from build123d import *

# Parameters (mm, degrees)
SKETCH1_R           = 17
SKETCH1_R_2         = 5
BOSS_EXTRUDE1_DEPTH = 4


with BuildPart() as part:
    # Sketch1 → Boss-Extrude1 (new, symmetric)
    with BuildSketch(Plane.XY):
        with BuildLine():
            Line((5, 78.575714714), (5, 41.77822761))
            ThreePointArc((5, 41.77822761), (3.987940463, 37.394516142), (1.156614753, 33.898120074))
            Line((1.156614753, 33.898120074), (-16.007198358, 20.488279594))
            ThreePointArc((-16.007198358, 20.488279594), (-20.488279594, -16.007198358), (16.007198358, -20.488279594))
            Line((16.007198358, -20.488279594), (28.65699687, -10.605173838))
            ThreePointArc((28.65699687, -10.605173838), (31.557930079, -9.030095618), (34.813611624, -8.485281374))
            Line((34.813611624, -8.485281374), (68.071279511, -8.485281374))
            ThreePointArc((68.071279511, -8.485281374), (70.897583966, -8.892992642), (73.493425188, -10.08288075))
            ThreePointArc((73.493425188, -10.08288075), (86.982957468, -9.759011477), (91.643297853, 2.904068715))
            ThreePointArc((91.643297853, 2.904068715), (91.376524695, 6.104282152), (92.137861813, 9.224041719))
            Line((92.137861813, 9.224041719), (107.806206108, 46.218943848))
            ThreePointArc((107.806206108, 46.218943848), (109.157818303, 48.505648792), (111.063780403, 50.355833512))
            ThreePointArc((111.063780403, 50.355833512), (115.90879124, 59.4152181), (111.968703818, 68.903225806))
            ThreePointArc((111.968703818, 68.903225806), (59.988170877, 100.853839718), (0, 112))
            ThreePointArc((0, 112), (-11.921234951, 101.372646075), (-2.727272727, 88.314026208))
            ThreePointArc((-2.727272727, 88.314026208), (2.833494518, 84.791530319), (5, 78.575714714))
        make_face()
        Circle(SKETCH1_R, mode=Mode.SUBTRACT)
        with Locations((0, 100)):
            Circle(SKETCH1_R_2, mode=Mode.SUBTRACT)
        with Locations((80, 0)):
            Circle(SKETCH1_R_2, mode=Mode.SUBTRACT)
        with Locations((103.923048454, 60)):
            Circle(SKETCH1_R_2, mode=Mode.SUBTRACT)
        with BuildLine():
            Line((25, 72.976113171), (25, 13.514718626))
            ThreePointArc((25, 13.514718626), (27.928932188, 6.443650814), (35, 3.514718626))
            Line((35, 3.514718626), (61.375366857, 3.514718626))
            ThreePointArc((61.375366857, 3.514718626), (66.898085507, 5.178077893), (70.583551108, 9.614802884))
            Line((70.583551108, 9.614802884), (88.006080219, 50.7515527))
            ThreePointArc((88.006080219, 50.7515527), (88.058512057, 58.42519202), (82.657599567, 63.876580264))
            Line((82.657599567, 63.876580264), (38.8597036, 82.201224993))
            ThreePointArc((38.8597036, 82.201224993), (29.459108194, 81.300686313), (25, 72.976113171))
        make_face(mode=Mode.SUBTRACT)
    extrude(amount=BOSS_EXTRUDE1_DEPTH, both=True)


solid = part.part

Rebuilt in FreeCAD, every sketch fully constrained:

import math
import FreeCAD as App
import Part
import Sketcher

V = App.Vector
Q = App.Units.Quantity

doc = App.newDocument("Part")
body = doc.addObject("PartDesign::Body", "Body")

# Sketch on XY plane
sketch1 = doc.addObject("Sketcher::SketchObject", "Sketch")
body.addObject(sketch1)
sketch1.AttachmentSupport = (doc.XY_Plane, [""])
sketch1.MapMode = "FlatFace"
sketch1.addGeometry([
    Part.LineSegment(V(5, 78.575715, 0), V(5, 41.778228, 0)),  # 0
    Part.ArcOfCircle(Part.Circle(V(-5, 41.778228, 0), V(0, 0, 1), 10), math.radians(-52), math.radians(0)),  # 1
    Part.LineSegment(V(1.156615, 33.89812, 0), V(-16.007198, 20.48828, 0)),  # 2
    Part.ArcOfCircle(Part.Circle(V(0, 0, 0), V(0, 0, 1), 26), math.radians(128), math.radians(308)),  # 3
    Part.LineSegment(V(16.007198, -20.48828, 0), V(28.656997, -10.605174, 0)),  # 4
    Part.ArcOfCircle(Part.Circle(V(34.813612, -18.485281, 0), V(0, 0, 1), 10), math.radians(90), math.radians(128)),  # 5
    Part.LineSegment(V(34.813612, -8.485281, 0), V(68.07128, -8.485281, 0)),  # 6
    Part.ArcOfCircle(Part.Circle(V(68.07128, -18.485281, 0), V(0, 0, 1), 10), math.radians(57.165478), math.radians(90)),  # 7
    Part.ArcOfCircle(Part.Circle(V(80, 0, 0), V(0, 0, 1), 12), math.radians(-122.834522), math.radians(14.00495)),  # 8
    Part.ArcOfCircle(Part.Circle(V(101.346046, 5.324126, 0), V(0, 0, 1), 10), math.radians(157.046025), math.radians(194.00495)),  # 9
    Part.LineSegment(V(92.137862, 9.224042, 0), V(107.806206, 46.218944, 0)),  # 10
    Part.ArcOfCircle(Part.Circle(V(117.01439, 42.319028, 0), V(0, 0, 1), 10), math.radians(126.51698), math.radians(157.046025)),  # 11
    Part.ArcOfCircle(Part.Circle(V(103.923048, 60, 0), V(0, 0, 1), 12), math.radians(-53.48302), math.radians(47.896551)),  # 12
    Part.ArcOfCircle(Part.Circle(V(0, -55, 0), V(0, 0, 1), 167), math.radians(47.896551), math.radians(90)),  # 13
    Part.ArcOfCircle(Part.Circle(V(0, 100, 0), V(0, 0, 1), 12), math.radians(90), math.radians(256.863441)),  # 14
    Part.ArcOfCircle(Part.Circle(V(-5, 78.575715, 0), V(0, 0, 1), 10), math.radians(0), math.radians(76.863441)),  # 15
    Part.Circle(V(0, 0, 0), V(0, 0, 1), 17),  # 16
    Part.Circle(V(80, 0, 0), V(0, 0, 1), 5),  # 17
    Part.LineSegment(V(25, 13.514719, 0), V(25, 72.976113, 0)),  # 18
    Part.ArcOfCircle(Part.Circle(V(35, 72.976113, 0), V(0, 0, 1), 10), math.radians(67.296005), math.radians(180)),  # 19
    Part.LineSegment(V(38.859704, 82.201225, 0), V(82.6576, 63.87658, 0)),  # 20
    Part.ArcOfCircle(Part.Circle(V(78.797896, 54.651468, 0), V(0, 0, 1), 10), math.radians(-22.953975), math.radians(67.296005)),  # 21
    Part.LineSegment(V(88.00608, 50.751553, 0), V(70.583551, 9.614803, 0)),  # 22
    Part.ArcOfCircle(Part.Circle(V(61.375367, 13.514719, 0), V(0, 0, 1), 10), math.radians(-90), math.radians(-22.953975)),  # 23
    Part.LineSegment(V(61.375367, 3.514719, 0), V(35, 3.514719, 0)),  # 24
    Part.ArcOfCircle(Part.Circle(V(35, 13.514719, 0), V(0, 0, 1), 10), math.radians(180), math.radians(270)),  # 25
    Part.Circle(V(0, 100, 0), V(0, 0, 1), 5),  # 26
    Part.Circle(V(103.923048, 60, 0), V(0, 0, 1), 5),  # 27
], False)
sketch1.addConstraint([
    Sketcher.Constraint("Tangent", 0, 2, 1, 2),
    Sketcher.Constraint("Tangent", 1, 1, 2, 1),
    Sketcher.Constraint("Tangent", 2, 2, 3, 1),
    Sketcher.Constraint("Tangent", 3, 2, 4, 1),
    Sketcher.Constraint("Tangent", 4, 2, 5, 2),
    Sketcher.Constraint("Tangent", 5, 1, 6, 1),
    Sketcher.Constraint("Tangent", 6, 2, 7, 2),
    Sketcher.Constraint("Tangent", 7, 1, 8, 1),
    Sketcher.Constraint("Tangent", 8, 2, 9, 2),
    Sketcher.Constraint("Tangent", 9, 1, 10, 1),
    Sketcher.Constraint("Tangent", 10, 2, 11, 2),
    Sketcher.Constraint("Tangent", 11, 1, 12, 1),
    Sketcher.Constraint("Tangent", 12, 2, 13, 1),
    Sketcher.Constraint("Tangent", 13, 2, 14, 1),
    Sketcher.Constraint("Tangent", 14, 2, 15, 2),
    Sketcher.Constraint("Tangent", 15, 1, 0, 1),
    Sketcher.Constraint("Tangent", 18, 2, 19, 2),
    Sketcher.Constraint("Tangent", 19, 1, 20, 1),
    Sketcher.Constraint("Tangent", 20, 2, 21, 2),
    Sketcher.Constraint("Tangent", 21, 1, 22, 1),
    Sketcher.Constraint("Tangent", 22, 2, 23, 2),
    Sketcher.Constraint("Tangent", 23, 1, 24, 1),
    Sketcher.Constraint("Tangent", 24, 2, 25, 2),
    Sketcher.Constraint("Tangent", 25, 1, 18, 1),
    Sketcher.Constraint("Vertical", 0),
    Sketcher.Constraint("Horizontal", 6),
    Sketcher.Constraint("Vertical", 18),
    Sketcher.Constraint("Horizontal", 24),
    Sketcher.Constraint("Coincident", 3, 3, -1, 1),
    Sketcher.Constraint("Coincident", 16, 3, -1, 1),
    Sketcher.Constraint("Coincident", 17, 3, 8, 3),
    Sketcher.Constraint("Coincident", 26, 3, 14, 3),
    Sketcher.Constraint("Coincident", 27, 3, 12, 3),
    Sketcher.Constraint("Equal", 1, 5),
    Sketcher.Constraint("Equal", 5, 7),
    Sketcher.Constraint("Equal", 7, 9),
    Sketcher.Constraint("Equal", 9, 11),
    Sketcher.Constraint("Equal", 8, 12),
    Sketcher.Constraint("Equal", 12, 14),
    Sketcher.Constraint("Equal", 11, 15),
    Sketcher.Constraint("Equal", 15, 19),
    Sketcher.Constraint("Equal", 19, 21),
    Sketcher.Constraint("Equal", 21, 23),
    Sketcher.Constraint("Equal", 23, 25),
    Sketcher.Constraint("Equal", 17, 26),
    Sketcher.Constraint("Equal", 26, 27),
    Sketcher.Constraint("PointOnObject", 8, 3, -1),
    Sketcher.Constraint("PointOnObject", 13, 3, -2),
    Sketcher.Constraint("PointOnObject", 14, 3, -2),
    Sketcher.Constraint("Parallel", 2, 4),
    Sketcher.Constraint("Parallel", 10, 22),
    Sketcher.Constraint("Diameter", 16, 34.0),
    Sketcher.Constraint("Diameter", 17, 10.0),
    Sketcher.Constraint("Radius", 1, 10.0),
    Sketcher.Constraint("Radius", 3, 26.0),
    Sketcher.Constraint("Radius", 8, 12.0),
    Sketcher.Constraint("Radius", 13, 167.0),
    Sketcher.Constraint("Angle", 2, Q("-142 deg")),
    Sketcher.Constraint("DistanceX", 1, 3, -1, 1, 5.0),
    Sketcher.Constraint("DistanceX", -1, 1, 8, 3, 80.0),
    Sketcher.Constraint("DistanceY", -1, 1, 12, 3, 60.0),
    Sketcher.Constraint("DistanceY", 13, 3, -1, 1, 55.0),
    Sketcher.Constraint("DistanceX", -1, 1, 19, 3, 35.0),
    Sketcher.Constraint("DistanceY", 7, 3, 23, 3, 32.0),
    Sketcher.Constraint("DistanceY", 3, 2, 5, 3, 2.002998),
    Sketcher.Constraint("DistanceX", -1, 1, 20, 2, 82.6576),
    Sketcher.Constraint("DistanceY", 9, 3, 1, 3, 36.454102),
    Sketcher.Constraint("DistanceY", 1, 3, 11, 3, 0.5408),
    Sketcher.Constraint("DistanceY", 19, 3, 15, 3, 5.599602),
    Sketcher.Constraint("DistanceY", 19, 1, 14, 2, 6.112801),
])
pad1 = doc.addObject("PartDesign::Pad", "Pad")
body.addObject(pad1)
pad1.Profile = sketch1
pad1.Length = 8
pad1.Midplane = True

doc.recompute()
